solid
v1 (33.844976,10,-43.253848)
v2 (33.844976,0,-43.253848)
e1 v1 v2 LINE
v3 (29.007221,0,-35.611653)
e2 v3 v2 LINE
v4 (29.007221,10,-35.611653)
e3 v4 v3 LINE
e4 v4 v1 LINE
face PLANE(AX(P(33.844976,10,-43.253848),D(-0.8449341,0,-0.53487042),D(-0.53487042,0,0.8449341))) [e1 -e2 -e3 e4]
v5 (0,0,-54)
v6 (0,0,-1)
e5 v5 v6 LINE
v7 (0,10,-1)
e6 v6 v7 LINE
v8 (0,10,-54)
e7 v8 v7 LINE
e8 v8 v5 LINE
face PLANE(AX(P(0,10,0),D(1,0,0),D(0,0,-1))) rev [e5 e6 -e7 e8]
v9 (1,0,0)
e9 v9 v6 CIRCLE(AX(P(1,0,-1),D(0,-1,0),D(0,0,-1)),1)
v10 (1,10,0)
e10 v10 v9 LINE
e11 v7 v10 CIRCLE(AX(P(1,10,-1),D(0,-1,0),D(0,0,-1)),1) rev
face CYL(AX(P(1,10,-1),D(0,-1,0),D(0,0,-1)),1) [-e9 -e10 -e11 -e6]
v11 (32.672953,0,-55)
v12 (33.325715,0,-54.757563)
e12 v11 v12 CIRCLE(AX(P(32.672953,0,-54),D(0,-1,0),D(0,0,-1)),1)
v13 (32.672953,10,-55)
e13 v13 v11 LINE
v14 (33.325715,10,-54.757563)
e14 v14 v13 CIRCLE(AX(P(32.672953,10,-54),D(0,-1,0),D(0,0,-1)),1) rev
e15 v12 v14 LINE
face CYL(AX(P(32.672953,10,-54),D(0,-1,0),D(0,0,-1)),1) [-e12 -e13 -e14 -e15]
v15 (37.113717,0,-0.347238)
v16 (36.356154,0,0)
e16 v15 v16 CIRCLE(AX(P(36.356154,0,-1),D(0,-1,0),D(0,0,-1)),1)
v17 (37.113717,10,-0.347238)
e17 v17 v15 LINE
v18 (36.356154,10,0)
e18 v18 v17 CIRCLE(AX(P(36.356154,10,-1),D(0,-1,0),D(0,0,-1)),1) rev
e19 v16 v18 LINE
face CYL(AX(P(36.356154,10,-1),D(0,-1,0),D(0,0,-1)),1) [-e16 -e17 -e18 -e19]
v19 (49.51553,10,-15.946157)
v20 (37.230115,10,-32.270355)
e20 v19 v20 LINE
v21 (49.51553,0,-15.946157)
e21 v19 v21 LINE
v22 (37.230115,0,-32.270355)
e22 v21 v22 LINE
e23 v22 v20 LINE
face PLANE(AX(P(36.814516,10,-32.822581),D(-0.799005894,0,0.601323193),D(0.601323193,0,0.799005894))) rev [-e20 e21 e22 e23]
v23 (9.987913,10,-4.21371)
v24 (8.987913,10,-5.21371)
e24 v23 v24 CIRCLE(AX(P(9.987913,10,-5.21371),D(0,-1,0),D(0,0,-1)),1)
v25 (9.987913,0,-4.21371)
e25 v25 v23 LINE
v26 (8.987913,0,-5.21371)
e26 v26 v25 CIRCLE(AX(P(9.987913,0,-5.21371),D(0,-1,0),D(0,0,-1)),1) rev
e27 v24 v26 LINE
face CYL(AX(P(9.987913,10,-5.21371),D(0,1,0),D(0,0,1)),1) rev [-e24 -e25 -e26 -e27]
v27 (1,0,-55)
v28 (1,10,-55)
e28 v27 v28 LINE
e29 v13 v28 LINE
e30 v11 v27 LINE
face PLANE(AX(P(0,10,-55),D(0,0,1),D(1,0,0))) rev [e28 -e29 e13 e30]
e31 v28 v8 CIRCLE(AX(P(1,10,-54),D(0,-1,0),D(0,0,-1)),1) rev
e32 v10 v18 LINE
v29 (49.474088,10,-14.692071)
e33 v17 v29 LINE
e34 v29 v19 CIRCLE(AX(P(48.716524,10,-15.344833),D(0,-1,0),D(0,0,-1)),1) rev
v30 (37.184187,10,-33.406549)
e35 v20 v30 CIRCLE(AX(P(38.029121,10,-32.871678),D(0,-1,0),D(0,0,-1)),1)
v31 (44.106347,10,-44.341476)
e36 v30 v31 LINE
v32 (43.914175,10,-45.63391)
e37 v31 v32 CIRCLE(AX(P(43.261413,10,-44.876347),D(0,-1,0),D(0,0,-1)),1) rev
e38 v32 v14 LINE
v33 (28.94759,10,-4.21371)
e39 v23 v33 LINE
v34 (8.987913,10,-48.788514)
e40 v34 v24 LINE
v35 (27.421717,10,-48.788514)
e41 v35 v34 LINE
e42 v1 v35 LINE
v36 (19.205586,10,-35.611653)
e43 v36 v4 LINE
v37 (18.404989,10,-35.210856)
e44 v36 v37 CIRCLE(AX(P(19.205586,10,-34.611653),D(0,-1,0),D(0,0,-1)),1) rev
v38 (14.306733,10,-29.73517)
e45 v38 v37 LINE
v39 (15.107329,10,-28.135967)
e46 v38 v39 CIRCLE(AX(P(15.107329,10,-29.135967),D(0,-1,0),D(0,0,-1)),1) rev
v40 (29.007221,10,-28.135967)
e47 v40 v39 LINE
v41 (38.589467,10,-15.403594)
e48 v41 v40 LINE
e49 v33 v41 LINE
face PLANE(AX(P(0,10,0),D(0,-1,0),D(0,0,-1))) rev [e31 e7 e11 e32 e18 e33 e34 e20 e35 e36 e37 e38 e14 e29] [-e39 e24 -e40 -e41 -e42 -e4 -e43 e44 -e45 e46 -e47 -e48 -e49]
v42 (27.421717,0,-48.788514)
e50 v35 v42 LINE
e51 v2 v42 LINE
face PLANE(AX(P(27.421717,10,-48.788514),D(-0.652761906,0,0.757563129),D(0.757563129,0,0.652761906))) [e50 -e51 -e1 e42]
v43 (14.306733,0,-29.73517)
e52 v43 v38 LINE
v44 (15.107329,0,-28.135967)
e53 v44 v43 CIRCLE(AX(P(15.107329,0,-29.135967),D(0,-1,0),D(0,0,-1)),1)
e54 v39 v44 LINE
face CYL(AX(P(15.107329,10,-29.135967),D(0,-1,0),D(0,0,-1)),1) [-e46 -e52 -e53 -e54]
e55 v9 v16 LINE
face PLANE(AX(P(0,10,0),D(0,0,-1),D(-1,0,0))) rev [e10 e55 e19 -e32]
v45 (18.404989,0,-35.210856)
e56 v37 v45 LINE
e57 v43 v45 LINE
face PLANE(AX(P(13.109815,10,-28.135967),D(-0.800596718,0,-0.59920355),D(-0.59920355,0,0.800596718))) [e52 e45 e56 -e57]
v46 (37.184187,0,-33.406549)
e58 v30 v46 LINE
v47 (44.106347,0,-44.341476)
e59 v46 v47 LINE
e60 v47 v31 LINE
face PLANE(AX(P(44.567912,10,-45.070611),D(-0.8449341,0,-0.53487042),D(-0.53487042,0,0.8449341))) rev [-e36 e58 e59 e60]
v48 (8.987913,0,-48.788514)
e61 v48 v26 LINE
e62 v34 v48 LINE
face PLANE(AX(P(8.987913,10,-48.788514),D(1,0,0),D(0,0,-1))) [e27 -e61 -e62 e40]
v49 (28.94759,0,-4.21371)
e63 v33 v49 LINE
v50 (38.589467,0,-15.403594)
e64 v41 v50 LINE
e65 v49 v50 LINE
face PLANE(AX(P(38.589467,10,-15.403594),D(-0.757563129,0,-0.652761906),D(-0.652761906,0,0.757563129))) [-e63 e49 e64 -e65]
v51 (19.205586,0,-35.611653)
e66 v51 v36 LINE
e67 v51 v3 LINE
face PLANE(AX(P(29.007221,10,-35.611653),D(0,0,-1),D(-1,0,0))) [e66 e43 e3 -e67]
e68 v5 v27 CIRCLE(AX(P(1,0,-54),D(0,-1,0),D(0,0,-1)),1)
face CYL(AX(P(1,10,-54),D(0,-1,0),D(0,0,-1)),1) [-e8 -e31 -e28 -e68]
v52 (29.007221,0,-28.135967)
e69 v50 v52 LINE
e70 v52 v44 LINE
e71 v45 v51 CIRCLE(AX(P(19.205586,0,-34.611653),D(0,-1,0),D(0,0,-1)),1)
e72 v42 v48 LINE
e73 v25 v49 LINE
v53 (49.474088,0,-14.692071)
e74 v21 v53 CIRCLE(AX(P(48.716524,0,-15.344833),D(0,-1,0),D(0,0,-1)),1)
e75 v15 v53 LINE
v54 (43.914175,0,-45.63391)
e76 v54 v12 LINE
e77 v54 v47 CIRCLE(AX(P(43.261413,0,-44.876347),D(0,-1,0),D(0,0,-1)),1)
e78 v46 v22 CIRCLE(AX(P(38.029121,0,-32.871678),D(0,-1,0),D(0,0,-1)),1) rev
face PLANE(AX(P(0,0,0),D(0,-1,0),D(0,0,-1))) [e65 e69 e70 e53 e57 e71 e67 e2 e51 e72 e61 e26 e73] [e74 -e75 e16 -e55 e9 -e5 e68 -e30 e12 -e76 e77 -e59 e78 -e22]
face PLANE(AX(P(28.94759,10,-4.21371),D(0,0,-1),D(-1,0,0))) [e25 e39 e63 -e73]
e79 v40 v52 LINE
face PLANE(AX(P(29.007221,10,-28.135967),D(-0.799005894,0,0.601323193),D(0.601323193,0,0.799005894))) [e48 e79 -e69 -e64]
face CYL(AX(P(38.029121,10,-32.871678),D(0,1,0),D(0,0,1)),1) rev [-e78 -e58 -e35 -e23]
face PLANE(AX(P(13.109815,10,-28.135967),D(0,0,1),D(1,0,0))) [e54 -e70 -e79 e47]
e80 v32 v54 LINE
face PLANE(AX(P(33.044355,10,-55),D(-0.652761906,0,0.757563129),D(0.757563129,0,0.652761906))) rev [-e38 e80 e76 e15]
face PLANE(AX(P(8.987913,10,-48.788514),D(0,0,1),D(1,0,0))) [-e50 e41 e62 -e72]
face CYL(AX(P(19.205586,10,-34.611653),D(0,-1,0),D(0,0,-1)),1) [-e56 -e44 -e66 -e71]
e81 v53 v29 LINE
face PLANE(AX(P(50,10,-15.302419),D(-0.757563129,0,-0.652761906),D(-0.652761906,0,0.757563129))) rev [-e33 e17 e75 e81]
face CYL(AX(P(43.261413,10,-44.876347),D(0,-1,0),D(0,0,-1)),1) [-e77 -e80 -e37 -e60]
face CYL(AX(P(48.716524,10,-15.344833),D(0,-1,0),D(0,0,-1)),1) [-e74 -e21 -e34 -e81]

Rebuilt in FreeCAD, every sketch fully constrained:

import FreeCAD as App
import Part
import Sketcher
from FreeCAD import Vector
Q = App.Units.Quantity


def edges_at(feature, points):
    """Names of the edges that pass closest to the given points."""
    edges = feature.Shape.Edges
    near = lambda p: min(range(len(edges)), key=lambda i: edges[i].distToShape(Part.Vertex(*p))[0])
    return sorted({f"Edge{near(p) + 1}" for p in points})


def add_polygon(sketch, points):
    """Adds a closed chain of lines whose ends are joined by coincident constraints."""
    first, n = sketch.GeometryCount, len(points)
    for a, b in zip(points, points[1:] + points[:1]):
        sketch.addGeometry(Part.LineSegment(App.Vector(*a, 0), App.Vector(*b, 0)), False)
    for i in range(n):
        sketch.addConstraint(Sketcher.Constraint("Coincident", first + i, 2, first + (i + 1) % n, 1))

doc = App.newDocument("Part")
body = doc.addObject("PartDesign::Body", "Body")

# Sketch on XZ plane
sketch1 = body.newObject("Sketcher::SketchObject", "Sketch")
sketch1.AttachmentSupport = (doc.getObject("XZ_Plane"), [""])
sketch1.MapMode = "FlatFace"
add_polygon(sketch1, [(44.567912, -45.070611), (33.044355, -55), (0, -55), (0, 0), (36.814516, 0), (50, -15.302419), (36.814516, -32.822581)])  # lines 0-6
add_polygon(sketch1, [(8.987913, -48.788514), (27.421717, -48.788514), (33.844976, -43.253848), (29.007221, -35.611653), (18.704964, -35.611653), (13.109815, -28.135967), (29.007221, -28.135967), (38.589467, -15.403594), (28.94759, -4.21371), (8.987913, -4.21371)])  # lines 7-16
sketch1.addConstraint(Sketcher.Constraint("Horizontal", 1))
sketch1.addConstraint(Sketcher.Constraint("Vertical", 2))
sketch1.addConstraint(Sketcher.Constraint("Horizontal", 3))
sketch1.addConstraint(Sketcher.Constraint("Horizontal", 7))
sketch1.addConstraint(Sketcher.Constraint("Horizontal", 10))
sketch1.addConstraint(Sketcher.Constraint("Horizontal", 12))
sketch1.addConstraint(Sketcher.Constraint("Horizontal", 15))
sketch1.addConstraint(Sketcher.Constraint("Vertical", 16))
sketch1.addConstraint(Sketcher.Constraint("Coincident", 2, 2, -1, 1))
sketch1.addConstraint(Sketcher.Constraint("Perpendicular", 0, 4))
sketch1.addConstraint(Sketcher.Constraint("Perpendicular", 4, 8))
sketch1.addConstraint(Sketcher.Constraint("Parallel", 6, 9))
sketch1.addConstraint(Sketcher.Constraint("Parallel", 5, 13))
sketch1.addConstraint(Sketcher.Constraint("Perpendicular", 8, 14))
sketch1.addConstraint(Sketcher.Constraint("Vertical", 3, 2, 5, 2))
sketch1.addConstraint(Sketcher.Constraint("Vertical", 9, 2, 12, 2))
sketch1.addConstraint(Sketcher.Constraint("DistanceY", 2, 1, 2, 2, Q("55 mm")))
sketch1.addConstraint(Sketcher.Constraint("DistanceX", -1, 1, 4, 2, Q("50 mm")))
sketch1.addConstraint(Sketcher.Constraint("DistanceX", 7, 2, 5, 2, Q("9.392799 mm")))
sketch1.addConstraint(Sketcher.Constraint("DistanceX", 11, 2, 5, 2, Q("23.704701 mm")))
sketch1.addConstraint(Sketcher.Constraint("Distance", 0, Q("15.21135 mm")))
sketch1.addConstraint(Sketcher.Constraint("Distance", 4, Q("20.19953 mm")))
sketch1.addConstraint(Sketcher.Constraint("Distance", 5, Q("21.927449 mm")))
sketch1.addConstraint(Sketcher.Constraint("Distance", 6, Q("14.49584 mm")))
sketch1.addConstraint(Sketcher.Constraint("DistanceX", 1, 2, 1, 1, Q("33.044355 mm")))
sketch1.addConstraint(Sketcher.Constraint("DistanceX", 7, 1, 7, 2, Q("18.433805 mm")))
sketch1.addConstraint(Sketcher.Constraint("DistanceX", 10, 2, 10, 1, Q("10.302257 mm")))
sketch1.addConstraint(Sketcher.Constraint("DistanceX", 12, 1, 12, 2, Q("15.897406 mm")))
sketch1.addConstraint(Sketcher.Constraint("DistanceX", 15, 2, 15, 1, Q("19.959677 mm")))
sketch1.addConstraint(Sketcher.Constraint("DistanceY", 16, 2, 16, 1, Q("44.574804 mm")))
sketch1.addConstraint(Sketcher.Constraint("DistanceY", 8, 2, -1, 1, Q("43.253848 mm")))
sketch1.addConstraint(Sketcher.Constraint("DistanceY", 14, 2, -1, 1, Q("4.21371 mm")))
sketch1.addConstraint(Sketcher.Constraint("DistanceY", 8, 2, 11, 2, Q("15.117882 mm")))
pad1 = body.newObject("PartDesign::Pad", "Pad")
pad1.Profile = sketch1
pad1.Length = 10
pad1.Reversed = True
doc.recompute()

fillet = body.newObject("PartDesign::Fillet", "Fillet")
fillet.Base = (pad1, edges_at(pad1, [
    (0, 5, -55),
    (33.044, 5, -55),
    (44.568, 5, -45.071),
    (36.815, 5, -32.823),
    (50, 5, -15.302),
    (36.815, 5, 0),
    (0, 5, 0),
    (8.988, 5, -4.214),
    (13.11, 5, -28.136),
    (18.705, 5, -35.612),
]))
fillet.Radius = 1

doc.recompute()
